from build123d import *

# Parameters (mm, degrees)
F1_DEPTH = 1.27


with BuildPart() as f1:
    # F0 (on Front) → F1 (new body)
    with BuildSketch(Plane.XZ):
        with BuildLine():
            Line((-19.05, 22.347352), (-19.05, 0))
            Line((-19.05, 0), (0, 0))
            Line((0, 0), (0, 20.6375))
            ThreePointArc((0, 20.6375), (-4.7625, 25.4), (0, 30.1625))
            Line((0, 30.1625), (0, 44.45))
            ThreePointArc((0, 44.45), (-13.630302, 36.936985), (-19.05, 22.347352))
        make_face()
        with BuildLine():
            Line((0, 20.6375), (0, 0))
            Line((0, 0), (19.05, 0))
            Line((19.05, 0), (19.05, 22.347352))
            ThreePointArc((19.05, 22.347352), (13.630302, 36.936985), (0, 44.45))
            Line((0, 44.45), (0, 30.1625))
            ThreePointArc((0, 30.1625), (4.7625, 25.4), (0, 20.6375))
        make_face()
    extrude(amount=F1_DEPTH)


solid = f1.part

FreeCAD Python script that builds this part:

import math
import FreeCAD as App
import Part
import Sketcher
Q = App.Units.Quantity

doc = App.newDocument("Part")
body = doc.addObject("PartDesign::Body", "Body")

# Sketch on XZ plane
sketch1 = body.newObject("Sketcher::SketchObject", "Sketch")
sketch1.AttachmentSupport = (doc.getObject("XZ_Plane"), [""])
sketch1.MapMode = "FlatFace"
sketch1.addGeometry([
    Part.LineSegment(App.Vector(-19.1, 22.3, 0), App.Vector(-19.1, 0, 0)),  # 0
    Part.LineSegment(App.Vector(-19.1, 0, 0), App.Vector(19.1, 0, 0)),  # 1
    Part.LineSegment(App.Vector(19.1, 0, 0), App.Vector(19.1, 22.3, 0)),  # 2
    Part.ArcOfCircle(Part.Circle(App.Vector(-3.3, 22.3, 0), App.Vector(0, 0, 1), 22.3), math.radians(0), math.radians(82)),  # 3
    Part.ArcOfCircle(Part.Circle(App.Vector(3.3, 22.3, 0), App.Vector(0, 0, 1), 22.3), math.radians(98), math.radians(180)),  # 4
    Part.Circle(App.Vector(0, 25.4, 0), App.Vector(0, 0, 1), 4.8),  # 5
], False)
sketch1.addConstraint([
    Sketcher.Constraint("Coincident", 0, 2, 1, 1),
    Sketcher.Constraint("Coincident", 1, 2, 2, 1),
    Sketcher.Constraint("Tangent", 2, 2, 3, 1),
    Sketcher.Constraint("Coincident", 3, 2, 4, 1),
    Sketcher.Constraint("Tangent", 4, 2, 0, 1),
    Sketcher.Constraint("Vertical", 0),
    Sketcher.Constraint("Horizontal", 1),
    Sketcher.Constraint("Vertical", 2),
    Sketcher.Constraint("Equal", 3, 4),
    Sketcher.Constraint("Symmetric", 0, 2, 1, 2, -1, 1),
    Sketcher.Constraint("PointOnObject", 5, 3, -2),
    Sketcher.Constraint("PointOnObject", 3, 2, -2),
    Sketcher.Constraint("Diameter", 5, Q("0.375 in")),
    Sketcher.Constraint("DistanceX", 1, 1, 1, 2, Q("1.5 in")),
    Sketcher.Constraint("DistanceY", -1, 1, 5, 3, Q("1 in")),
    Sketcher.Constraint("DistanceY", -1, 1, 3, 2, Q("1.75 in")),
    Sketcher.Constraint("Radius", 3, Q("22.347231 mm")),
])
pad1 = body.newObject("PartDesign::Pad", "Pad")
pad1.Profile = sketch1
pad1.Length = Q("0.05 in")

doc.recompute()
